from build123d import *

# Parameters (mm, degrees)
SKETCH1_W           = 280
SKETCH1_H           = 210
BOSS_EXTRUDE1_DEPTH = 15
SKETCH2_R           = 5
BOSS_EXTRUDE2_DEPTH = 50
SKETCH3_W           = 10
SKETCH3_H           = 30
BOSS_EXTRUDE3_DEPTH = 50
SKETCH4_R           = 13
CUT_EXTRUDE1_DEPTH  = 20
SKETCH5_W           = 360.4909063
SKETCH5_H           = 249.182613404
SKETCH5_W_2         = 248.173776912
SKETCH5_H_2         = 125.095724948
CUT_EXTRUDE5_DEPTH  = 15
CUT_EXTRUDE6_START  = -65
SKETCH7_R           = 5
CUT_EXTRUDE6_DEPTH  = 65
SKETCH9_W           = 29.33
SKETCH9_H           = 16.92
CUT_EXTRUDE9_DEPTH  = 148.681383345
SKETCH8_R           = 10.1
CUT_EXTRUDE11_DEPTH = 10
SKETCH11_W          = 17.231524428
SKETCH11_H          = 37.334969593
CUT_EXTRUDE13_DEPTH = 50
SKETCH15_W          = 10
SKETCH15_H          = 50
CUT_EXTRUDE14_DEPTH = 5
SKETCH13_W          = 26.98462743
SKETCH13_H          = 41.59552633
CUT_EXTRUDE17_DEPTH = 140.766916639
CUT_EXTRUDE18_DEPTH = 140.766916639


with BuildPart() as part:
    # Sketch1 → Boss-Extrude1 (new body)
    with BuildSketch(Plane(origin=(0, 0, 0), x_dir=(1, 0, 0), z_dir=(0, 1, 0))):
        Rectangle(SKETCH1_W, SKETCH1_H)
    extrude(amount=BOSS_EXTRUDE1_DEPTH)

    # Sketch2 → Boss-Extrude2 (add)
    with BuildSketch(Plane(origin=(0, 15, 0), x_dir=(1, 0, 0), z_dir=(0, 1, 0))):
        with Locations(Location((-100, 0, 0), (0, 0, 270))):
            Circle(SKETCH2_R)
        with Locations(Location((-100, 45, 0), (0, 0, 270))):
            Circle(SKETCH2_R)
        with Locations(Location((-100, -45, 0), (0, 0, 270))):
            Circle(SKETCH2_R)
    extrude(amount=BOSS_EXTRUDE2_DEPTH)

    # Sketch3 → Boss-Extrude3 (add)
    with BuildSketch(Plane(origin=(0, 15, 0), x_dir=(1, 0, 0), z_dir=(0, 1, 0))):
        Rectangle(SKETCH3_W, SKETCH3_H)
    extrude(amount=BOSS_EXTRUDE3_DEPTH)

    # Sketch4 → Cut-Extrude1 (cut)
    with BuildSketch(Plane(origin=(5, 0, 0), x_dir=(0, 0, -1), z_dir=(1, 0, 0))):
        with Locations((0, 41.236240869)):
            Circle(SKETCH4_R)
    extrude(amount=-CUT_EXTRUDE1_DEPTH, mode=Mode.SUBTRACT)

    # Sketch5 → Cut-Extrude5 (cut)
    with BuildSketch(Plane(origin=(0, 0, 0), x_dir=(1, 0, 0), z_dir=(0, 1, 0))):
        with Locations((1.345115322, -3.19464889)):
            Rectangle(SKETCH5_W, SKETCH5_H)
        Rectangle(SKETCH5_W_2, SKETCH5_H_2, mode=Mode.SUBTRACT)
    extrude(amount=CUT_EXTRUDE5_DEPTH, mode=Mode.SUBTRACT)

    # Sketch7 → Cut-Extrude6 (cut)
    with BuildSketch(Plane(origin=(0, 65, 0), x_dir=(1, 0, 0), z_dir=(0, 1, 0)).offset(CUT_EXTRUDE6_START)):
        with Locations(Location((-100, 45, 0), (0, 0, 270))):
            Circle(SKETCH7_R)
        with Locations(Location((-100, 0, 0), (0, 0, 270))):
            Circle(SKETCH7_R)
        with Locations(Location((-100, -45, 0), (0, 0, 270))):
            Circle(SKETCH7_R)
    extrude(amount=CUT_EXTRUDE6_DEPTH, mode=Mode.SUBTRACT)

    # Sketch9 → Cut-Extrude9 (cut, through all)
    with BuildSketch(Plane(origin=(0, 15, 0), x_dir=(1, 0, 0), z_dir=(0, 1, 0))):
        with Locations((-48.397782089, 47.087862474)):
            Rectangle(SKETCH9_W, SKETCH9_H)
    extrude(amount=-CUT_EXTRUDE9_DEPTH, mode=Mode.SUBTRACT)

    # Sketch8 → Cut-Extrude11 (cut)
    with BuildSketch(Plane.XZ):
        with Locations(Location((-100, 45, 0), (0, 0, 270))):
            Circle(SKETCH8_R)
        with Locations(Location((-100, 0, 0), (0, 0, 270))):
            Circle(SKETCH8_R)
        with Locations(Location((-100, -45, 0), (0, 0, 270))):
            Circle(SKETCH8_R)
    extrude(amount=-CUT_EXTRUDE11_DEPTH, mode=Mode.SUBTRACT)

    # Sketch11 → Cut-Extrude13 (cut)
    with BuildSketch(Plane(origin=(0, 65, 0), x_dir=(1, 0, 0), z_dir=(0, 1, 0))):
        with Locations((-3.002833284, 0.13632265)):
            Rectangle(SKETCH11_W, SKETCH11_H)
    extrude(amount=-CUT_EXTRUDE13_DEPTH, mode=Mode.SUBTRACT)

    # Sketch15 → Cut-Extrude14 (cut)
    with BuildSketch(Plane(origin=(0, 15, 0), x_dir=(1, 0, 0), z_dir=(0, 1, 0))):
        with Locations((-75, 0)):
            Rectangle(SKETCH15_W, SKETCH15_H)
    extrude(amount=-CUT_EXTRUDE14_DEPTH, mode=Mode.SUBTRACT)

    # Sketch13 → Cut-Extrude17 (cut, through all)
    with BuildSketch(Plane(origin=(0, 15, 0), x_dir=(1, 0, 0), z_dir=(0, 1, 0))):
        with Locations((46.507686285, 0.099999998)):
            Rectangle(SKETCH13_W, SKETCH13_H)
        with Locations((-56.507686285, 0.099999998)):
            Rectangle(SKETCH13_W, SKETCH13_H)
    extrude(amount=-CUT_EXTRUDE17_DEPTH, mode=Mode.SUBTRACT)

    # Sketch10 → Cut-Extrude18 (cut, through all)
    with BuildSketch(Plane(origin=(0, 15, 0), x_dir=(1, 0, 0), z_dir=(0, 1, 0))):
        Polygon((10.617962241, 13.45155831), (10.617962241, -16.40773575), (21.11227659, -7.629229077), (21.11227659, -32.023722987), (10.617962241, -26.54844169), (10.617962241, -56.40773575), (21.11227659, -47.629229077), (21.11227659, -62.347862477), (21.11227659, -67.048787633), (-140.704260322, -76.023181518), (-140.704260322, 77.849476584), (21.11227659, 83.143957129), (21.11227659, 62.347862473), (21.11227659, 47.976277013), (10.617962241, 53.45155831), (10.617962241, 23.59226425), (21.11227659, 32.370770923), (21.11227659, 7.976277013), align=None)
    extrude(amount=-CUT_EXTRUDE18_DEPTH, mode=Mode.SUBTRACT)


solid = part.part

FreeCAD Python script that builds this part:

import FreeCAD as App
import Part
import Sketcher
from FreeCAD import Vector
Q = App.Units.Quantity

doc = App.newDocument("Part")
params = doc.addObject("Spreadsheet::Sheet", "Params")
for row, (alias, value) in enumerate([
    ("sketch1_width", "280 mm"),
    ("sketch1_height", "210 mm"),
    ("pad1_length", "15 mm"),
    ("sketch2_diameter", "10 mm"),
    ("pad2_length", "50 mm"),
    ("sketch3_width", "10 mm"),
    ("sketch3_height", "30 mm"),
    ("pad3_length", "50 mm"),
    ("sketch4_diameter", "26 mm"),
    ("pocket1_length", "20 mm"),
    ("pocket2_length", "15 mm"),
    ("sketch6_diameter", "10 mm"),
    ("pocket3_length", "65 mm"),
    ("sketch7_width", "29.33 mm"),
    ("sketch7_height", "16.92 mm"),
    ("sketch8_diameter", "20.2 mm"),
    ("pocket5_length", "10 mm"),
    ("pocket6_length", "50 mm"),
    ("sketch10_width", "10 mm"),
    ("sketch10_height", "50 mm"),
    ("pocket7_length", "5 mm"),
], start=1):
    params.set(f"A{row}", alias)
    params.set(f"B{row}", "=" + value)
    params.setAlias(f"B{row}", alias)

body = doc.addObject("PartDesign::Body", "Body")

# Sketch on XZ plane
sketch1 = body.newObject("Sketcher::SketchObject", "Sketch")
sketch1.AttachmentSupport = (doc.getObject("XZ_Plane"), [""])
sketch1.MapMode = "FlatFace"
sketch1.addGeometry(Part.LineSegment(Vector(-140, -105, 0), Vector(-140, 105, 0)), False)
sketch1.addGeometry(Part.LineSegment(Vector(-140, 105, 0), Vector(140, 105, 0)), False)
sketch1.addGeometry(Part.LineSegment(Vector(140, 105, 0), Vector(140, -105, 0)), False)
sketch1.addGeometry(Part.LineSegment(Vector(140, -105, 0), Vector(-140, -105, 0)), False)
sketch1.addConstraint(Sketcher.Constraint("Coincident", 0, 2, 1, 1))
sketch1.addConstraint(Sketcher.Constraint("Coincident", 1, 2, 2, 1))
sketch1.addConstraint(Sketcher.Constraint("Coincident", 2, 2, 3, 1))
sketch1.addConstraint(Sketcher.Constraint("Coincident", 3, 2, 0, 1))
sketch1.addConstraint(Sketcher.Constraint("Vertical", 0))
sketch1.addConstraint(Sketcher.Constraint("Horizontal", 1))
sketch1.addConstraint(Sketcher.Constraint("Vertical", 2))
sketch1.addConstraint(Sketcher.Constraint("Horizontal", 3))
sketch1.addConstraint(Sketcher.Constraint("Symmetric", 0, 2, 2, 2, -1, 1))
sketch1.addConstraint(Sketcher.Constraint("DistanceX", 1, 1, 1, 2, Q("280 mm")))
sketch1.addConstraint(Sketcher.Constraint("DistanceY", 0, 1, 0, 2, Q("210 mm")))
sketch1.setExpression("Constraints[9]", "Params.sketch1_width")
sketch1.setExpression("Constraints[10]", "Params.sketch1_height")
pad1 = body.newObject("PartDesign::Pad", "Pad")
pad1.Profile = sketch1
pad1.setExpression("Length", "Params.pad1_length")
pad1.Reversed = True

# Sketch on XZ plane
sketch2 = body.newObject("Sketcher::SketchObject", "Sketch001")
sketch2.AttachmentSupport = (doc.getObject("XZ_Plane"), [""])
sketch2.MapMode = "FlatFace"
sketch2.AttachmentOffset = App.Placement(Vector(0, 0, -15), App.Rotation())
sketch2.addGeometry(Part.Circle(Vector(-100, 0, 0), Vector(0, 0, 1), 5), False)
sketch2.addGeometry(Part.Circle(Vector(-100, -45, 0), Vector(0, 0, 1), 5), False)
sketch2.addGeometry(Part.Circle(Vector(-100, 45, 0), Vector(0, 0, 1), 5), False)
sketch2.addConstraint(Sketcher.Constraint("Equal", 0, 1))
sketch2.addConstraint(Sketcher.Constraint("Equal", 1, 2))
sketch2.addConstraint(Sketcher.Constraint("Symmetric", 1, 3, 2, 3, -1))
sketch2.addConstraint(Sketcher.Constraint("PointOnObject", 0, 3, -1))
sketch2.addConstraint(Sketcher.Constraint("Vertical", 0, 3, 1, 3))
sketch2.addConstraint(Sketcher.Constraint("Diameter", 0, Q("10 mm")))
sketch2.addConstraint(Sketcher.Constraint("DistanceX", 0, 3, -1, 1, Q("100 mm")))
sketch2.addConstraint(Sketcher.Constraint("DistanceY", 1, 3, -1, 1, Q("45 mm")))
sketch2.setExpression("Constraints[5]", "Params.sketch2_diameter")
pad2 = body.newObject("PartDesign::Pad", "Pad001")
pad2.Profile = sketch2
pad2.setExpression("Length", "Params.pad2_length")
pad2.Reversed = True

# Sketch on XZ plane
sketch3 = body.newObject("Sketcher::SketchObject", "Sketch002")
sketch3.AttachmentSupport = (doc.getObject("XZ_Plane"), [""])
sketch3.MapMode = "FlatFace"
sketch3.AttachmentOffset = App.Placement(Vector(0, 0, -15), App.Rotation())
sketch3.addGeometry(Part.LineSegment(Vector(-5, -15, 0), Vector(-5, 15, 0)), False)
sketch3.addGeometry(Part.LineSegment(Vector(-5, 15, 0), Vector(5, 15, 0)), False)
sketch3.addGeometry(Part.LineSegment(Vector(5, 15, 0), Vector(5, -15, 0)), False)
sketch3.addGeometry(Part.LineSegment(Vector(5, -15, 0), Vector(-5, -15, 0)), False)
sketch3.addConstraint(Sketcher.Constraint("Coincident", 0, 2, 1, 1))
sketch3.addConstraint(Sketcher.Constraint("Coincident", 1, 2, 2, 1))
sketch3.addConstraint(Sketcher.Constraint("Coincident", 2, 2, 3, 1))
sketch3.addConstraint(Sketcher.Constraint("Coincident", 3, 2, 0, 1))
sketch3.addConstraint(Sketcher.Constraint("Vertical", 0))
sketch3.addConstraint(Sketcher.Constraint("Horizontal", 1))
sketch3.addConstraint(Sketcher.Constraint("Vertical", 2))
sketch3.addConstraint(Sketcher.Constraint("Horizontal", 3))
sketch3.addConstraint(Sketcher.Constraint("Symmetric", 0, 2, 2, 2, -1, 1))
sketch3.addConstraint(Sketcher.Constraint("DistanceX", 1, 1, 1, 2, Q("10 mm")))
sketch3.addConstraint(Sketcher.Constraint("DistanceY", 0, 1, 0, 2, Q("30 mm")))
sketch3.setExpression("Constraints[9]", "Params.sketch3_width")
sketch3.setExpression("Constraints[10]", "Params.sketch3_height")
pad3 = body.newObject("PartDesign::Pad", "Pad002")
pad3.Profile = sketch3
pad3.setExpression("Length", "Params.pad3_length")
pad3.Reversed = True

# Sketch on YZ plane
sketch4 = body.newObject("Sketcher::SketchObject", "Sketch003")
sketch4.AttachmentSupport = (doc.getObject("YZ_Plane"), [""])
sketch4.MapMode = "FlatFace"
sketch4.AttachmentOffset = App.Placement(Vector(0, 0, 5), App.Rotation())
sketch4.addGeometry(Part.Circle(Vector(41, 0, 0), Vector(0, 0, 1), 13), False)
sketch4.addConstraint(Sketcher.Constraint("PointOnObject", 0, 3, -1))
sketch4.addConstraint(Sketcher.Constraint("Diameter", 0, Q("26 mm")))
sketch4.addConstraint(Sketcher.Constraint("DistanceX", -1, 1, 0, 3, Q("41.236241 mm")))
sketch4.setExpression("Constraints[1]", "Params.sketch4_diameter")
pocket1 = body.newObject("PartDesign::Pocket", "Pocket")
pocket1.Profile = sketch4
pocket1.setExpression("Length", "Params.pocket1_length")

# Sketch on XZ plane
sketch5 = body.newObject("Sketcher::SketchObject", "Sketch004")
sketch5.AttachmentSupport = (doc.getObject("XZ_Plane"), [""])
sketch5.MapMode = "FlatFace"
sketch5.addGeometry(Part.LineSegment(Vector(-179, -121, 0), Vector(-179, 128, 0)), False)
sketch5.addGeometry(Part.LineSegment(Vector(-179, 128, 0), Vector(182, 128, 0)), False)
sketch5.addGeometry(Part.LineSegment(Vector(182, 128, 0), Vector(182, -121, 0)), False)
sketch5.addGeometry(Part.LineSegment(Vector(182, -121, 0), Vector(-179, -121, 0)), False)
sketch5.addGeometry(Part.LineSegment(Vector(124, 63, 0), Vector(-124, 63, 0)), False)
sketch5.addGeometry(Part.LineSegment(Vector(-124, 63, 0), Vector(-124, -63, 0)), False)
sketch5.addGeometry(Part.LineSegment(Vector(-124, -63, 0), Vector(124, -63, 0)), False)
sketch5.addGeometry(Part.LineSegment(Vector(124, -63, 0), Vector(124, 63, 0)), False)
sketch5.addConstraint(Sketcher.Constraint("Coincident", 0, 2, 1, 1))
sketch5.addConstraint(Sketcher.Constraint("Coincident", 1, 2, 2, 1))
sketch5.addConstraint(Sketcher.Constraint("Coincident", 2, 2, 3, 1))
sketch5.addConstraint(Sketcher.Constraint("Coincident", 3, 2, 0, 1))
sketch5.addConstraint(Sketcher.Constraint("Coincident", 4, 2, 5, 1))
sketch5.addConstraint(Sketcher.Constraint("Coincident", 5, 2, 6, 1))
sketch5.addConstraint(Sketcher.Constraint("Coincident", 6, 2, 7, 1))
sketch5.addConstraint(Sketcher.Constraint("Coincident", 7, 2, 4, 1))
sketch5.addConstraint(Sketcher.Constraint("Vertical", 0))
sketch5.addConstraint(Sketcher.Constraint("Horizontal", 1))
sketch5.addConstraint(Sketcher.Constraint("Vertical", 2))
sketch5.addConstraint(Sketcher.Constraint("Horizontal", 3))
sketch5.addConstraint(Sketcher.Constraint("Horizontal", 4))
sketch5.addConstraint(Sketcher.Constraint("Vertical", 5))
sketch5.addConstraint(Sketcher.Constraint("Horizontal", 6))
sketch5.addConstraint(Sketcher.Constraint("Vertical", 7))
sketch5.addConstraint(Sketcher.Constraint("Symmetric", 4, 2, 6, 2, -1, 1))
sketch5.addConstraint(Sketcher.Constraint("DistanceX", 1, 1, 1, 2, Q("360.490906 mm")))
sketch5.addConstraint(Sketcher.Constraint("DistanceX", 4, 2, 4, 1, Q("248.173777 mm")))
sketch5.addConstraint(Sketcher.Constraint("DistanceY", 0, 1, 0, 2, Q("249.182613 mm")))
sketch5.addConstraint(Sketcher.Constraint("DistanceY", 5, 2, 5, 1, Q("125.095725 mm")))
sketch5.addConstraint(Sketcher.Constraint("DistanceX", -1, 1, 1, 2, Q("181.590568 mm")))
sketch5.addConstraint(Sketcher.Constraint("DistanceY", 3, 2, 4, 2, Q("183.94452 mm")))
pocket2 = body.newObject("PartDesign::Pocket", "Pocket001")
pocket2.Profile = sketch5
pocket2.setExpression("Length", "Params.pocket2_length")

# Sketch on XZ plane
sketch6 = body.newObject("Sketcher::SketchObject", "Sketch005")
sketch6.AttachmentSupport = (doc.getObject("XZ_Plane"), [""])
sketch6.MapMode = "FlatFace"
sketch6.addGeometry(Part.Circle(Vector(-100, -45, 0), Vector(0, 0, 1), 5), False)
sketch6.addGeometry(Part.Circle(Vector(-100, 0, 0), Vector(0, 0, 1), 5), False)
sketch6.addGeometry(Part.Circle(Vector(-100, 45, 0), Vector(0, 0, 1), 5), False)
sketch6.addConstraint(Sketcher.Constraint("Equal", 0, 1))
sketch6.addConstraint(Sketcher.Constraint("Equal", 1, 2))
sketch6.addConstraint(Sketcher.Constraint("Symmetric", 0, 3, 2, 3, -1))
sketch6.addConstraint(Sketcher.Constraint("PointOnObject", 1, 3, -1))
sketch6.addConstraint(Sketcher.Constraint("Vertical", 0, 3, 1, 3))
sketch6.addConstraint(Sketcher.Constraint("Diameter", 0, Q("10 mm")))
sketch6.addConstraint(Sketcher.Constraint("DistanceX", 0, 3, -1, 1, Q("100 mm")))
sketch6.addConstraint(Sketcher.Constraint("DistanceY", 0, 3, -1, 1, Q("45 mm")))
sketch6.setExpression("Constraints[5]", "Params.sketch6_diameter")
pocket3 = body.newObject("PartDesign::Pocket", "Pocket002")
pocket3.Profile = sketch6
pocket3.setExpression("Length", "Params.pocket3_length")

# Sketch on XZ plane
sketch7 = body.newObject("Sketcher::SketchObject", "Sketch006")
sketch7.AttachmentSupport = (doc.getObject("XZ_Plane"), [""])
sketch7.MapMode = "FlatFace"
sketch7.AttachmentOffset = App.Placement(Vector(0, 0, -15), App.Rotation())
sketch7.addGeometry(Part.LineSegment(Vector(-63, -56, 0), Vector(-63, -39, 0)), False)
sketch7.addGeometry(Part.LineSegment(Vector(-63, -39, 0), Vector(-34, -39, 0)), False)
sketch7.addGeometry(Part.LineSegment(Vector(-34, -39, 0), Vector(-34, -56, 0)), False)
sketch7.addGeometry(Part.LineSegment(Vector(-34, -56, 0), Vector(-63, -56, 0)), False)
sketch7.addConstraint(Sketcher.Constraint("Coincident", 0, 2, 1, 1))
sketch7.addConstraint(Sketcher.Constraint("Coincident", 1, 2, 2, 1))
sketch7.addConstraint(Sketcher.Constraint("Coincident", 2, 2, 3, 1))
sketch7.addConstraint(Sketcher.Constraint("Coincident", 3, 2, 0, 1))
sketch7.addConstraint(Sketcher.Constraint("Vertical", 0))
sketch7.addConstraint(Sketcher.Constraint("Horizontal", 1))
sketch7.addConstraint(Sketcher.Constraint("Vertical", 2))
sketch7.addConstraint(Sketcher.Constraint("Horizontal", 3))
sketch7.addConstraint(Sketcher.Constraint("DistanceX", 1, 1, 1, 2, Q("29.33 mm")))
sketch7.addConstraint(Sketcher.Constraint("DistanceY", 0, 1, 0, 2, Q("16.92 mm")))
sketch7.addConstraint(Sketcher.Constraint("DistanceX", 0, 2, -1, 1, Q("63.062782 mm")))
sketch7.addConstraint(Sketcher.Constraint("DistanceY", 0, 2, -1, 1, Q("38.627862 mm")))
sketch7.setExpression("Constraints[8]", "Params.sketch7_width")
sketch7.setExpression("Constraints[9]", "Params.sketch7_height")
pocket4 = body.newObject("PartDesign::Pocket", "Pocket003")
pocket4.Profile = sketch7
pocket4.Type = "ThroughAll"
pocket4.Reversed = True

# Sketch on XZ plane
sketch8 = body.newObject("Sketcher::SketchObject", "Sketch007")
sketch8.AttachmentSupport = (doc.getObject("XZ_Plane"), [""])
sketch8.MapMode = "FlatFace"
sketch8.addGeometry(Part.Circle(Vector(-100, 45, 0), Vector(0, 0, 1), 10), False)
sketch8.addGeometry(Part.Circle(Vector(-100, 0, 0), Vector(0, 0, 1), 10), False)
sketch8.addGeometry(Part.Circle(Vector(-100, -45, 0), Vector(0, 0, 1), 10), False)
sketch8.addConstraint(Sketcher.Constraint("Equal", 0, 1))
sketch8.addConstraint(Sketcher.Constraint("Equal", 1, 2))
sketch8.addConstraint(Sketcher.Constraint("Symmetric", 0, 3, 2, 3, -1))
sketch8.addConstraint(Sketcher.Constraint("PointOnObject", 1, 3, -1))
sketch8.addConstraint(Sketcher.Constraint("Vertical", 0, 3, 1, 3))
sketch8.addConstraint(Sketcher.Constraint("Diameter", 0, Q("20.2 mm")))
sketch8.addConstraint(Sketcher.Constraint("DistanceX", 0, 3, -1, 1, Q("100 mm")))
sketch8.addConstraint(Sketcher.Constraint("DistanceY", -1, 1, 0, 3, Q("45 mm")))
sketch8.setExpression("Constraints[5]", "Params.sketch8_diameter")
pocket5 = body.newObject("PartDesign::Pocket", "Pocket004")
pocket5.Profile = sketch8
pocket5.setExpression("Length", "Params.pocket5_length")

# Sketch on XZ plane
sketch9 = body.newObject("Sketcher::SketchObject", "Sketch008")
sketch9.AttachmentSupport = (doc.getObject("XZ_Plane"), [""])
sketch9.MapMode = "FlatFace"
sketch9.AttachmentOffset = App.Placement(Vector(0, 0, -65), App.Rotation())
sketch9.addGeometry(Part.LineSegment(Vector(-12, -19, 0), Vector(-12, 19, 0)), False)
sketch9.addGeometry(Part.LineSegment(Vector(-12, 19, 0), Vector(6, 19, 0)), False)
sketch9.addGeometry(Part.LineSegment(Vector(6, 19, 0), Vector(6, -19, 0)), False)
sketch9.addGeometry(Part.LineSegment(Vector(6, -19, 0), Vector(-12, -19, 0)), False)
sketch9.addConstraint(Sketcher.Constraint("Coincident", 0, 2, 1, 1))
sketch9.addConstraint(Sketcher.Constraint("Coincident", 1, 2, 2, 1))
sketch9.addConstraint(Sketcher.Constraint("Coincident", 2, 2, 3, 1))
sketch9.addConstraint(Sketcher.Constraint("Coincident", 3, 2, 0, 1))
sketch9.addConstraint(Sketcher.Constraint("Vertical", 0))
sketch9.addConstraint(Sketcher.Constraint("Horizontal", 1))
sketch9.addConstraint(Sketcher.Constraint("Vertical", 2))
sketch9.addConstraint(Sketcher.Constraint("Horizontal", 3))
sketch9.addConstraint(Sketcher.Constraint("DistanceY", 0, 1, 0, 2, Q("37.33497 mm")))
sketch9.addConstraint(Sketcher.Constraint("DistanceX", 1, 1, 1, 2, Q("17.231524 mm")))
sketch9.addConstraint(Sketcher.Constraint("DistanceX", -1, 1, 1, 2, Q("5.612929 mm")))
sketch9.addConstraint(Sketcher.Constraint("DistanceY", -1, 1, 0, 2, Q("18.531162 mm")))
pocket6 = body.newObject("PartDesign::Pocket", "Pocket005")
pocket6.Profile = sketch9
pocket6.setExpression("Length", "Params.pocket6_length")
pocket6.Reversed = True

# Sketch on XZ plane
sketch10 = body.newObject("Sketcher::SketchObject", "Sketch009")
sketch10.AttachmentSupport = (doc.getObject("XZ_Plane"), [""])
sketch10.MapMode = "FlatFace"
sketch10.AttachmentOffset = App.Placement(Vector(0, 0, -15), App.Rotation())
sketch10.addGeometry(Part.LineSegment(Vector(-80, -25, 0), Vector(-80, 25, 0)), False)
sketch10.addGeometry(Part.LineSegment(Vector(-80, 25, 0), Vector(-70, 25, 0)), False)
sketch10.addGeometry(Part.LineSegment(Vector(-70, 25, 0), Vector(-70, -25, 0)), False)
sketch10.addGeometry(Part.LineSegment(Vector(-70, -25, 0), Vector(-80, -25, 0)), False)
sketch10.addConstraint(Sketcher.Constraint("Coincident", 0, 2, 1, 1))
sketch10.addConstraint(Sketcher.Constraint("Coincident", 1, 2, 2, 1))
sketch10.addConstraint(Sketcher.Constraint("Coincident", 2, 2, 3, 1))
sketch10.addConstraint(Sketcher.Constraint("Coincident", 3, 2, 0, 1))
sketch10.addConstraint(Sketcher.Constraint("Vertical", 0))
sketch10.addConstraint(Sketcher.Constraint("Horizontal", 1))
sketch10.addConstraint(Sketcher.Constraint("Vertical", 2))
sketch10.addConstraint(Sketcher.Constraint("Horizontal", 3))
sketch10.addConstraint(Sketcher.Constraint("DistanceX", 1, 1, 1, 2, Q("10 mm")))
sketch10.addConstraint(Sketcher.Constraint("DistanceY", 0, 1, 0, 2, Q("50 mm")))
sketch10.addConstraint(Sketcher.Constraint("DistanceX", 0, 2, -1, 1, Q("80 mm")))
sketch10.addConstraint(Sketcher.Constraint("DistanceY", -1, 1, 0, 2, Q("25 mm")))
sketch10.setExpression("Constraints[8]", "Params.sketch10_width")
sketch10.setExpression("Constraints[9]", "Params.sketch10_height")
pocket7 = body.newObject("PartDesign::Pocket", "Pocket006")
pocket7.Profile = sketch10
pocket7.setExpression("Length", "Params.pocket7_length")
pocket7.Reversed = True

# Sketch on XZ plane
sketch11 = body.newObject("Sketcher::SketchObject", "Sketch010")
sketch11.AttachmentSupport = (doc.getObject("XZ_Plane"), [""])
sketch11.MapMode = "FlatFace"
sketch11.AttachmentOffset = App.Placement(Vector(0, 0, -15), App.Rotation())
sketch11.addGeometry(Part.LineSegment(Vector(33, -21, 0), Vector(33, 21, 0)), False)
sketch11.addGeometry(Part.LineSegment(Vector(33, 21, 0), Vector(60, 21, 0)), False)
sketch11.addGeometry(Part.LineSegment(Vector(60, 21, 0), Vector(60, -21, 0)), False)
sketch11.addGeometry(Part.LineSegment(Vector(60, -21, 0), Vector(33, -21, 0)), False)
sketch11.addGeometry(Part.LineSegment(Vector(-70, -21, 0), Vector(-70, 21, 0)), False)
sketch11.addGeometry(Part.LineSegment(Vector(-70, 21, 0), Vector(-43, 21, 0)), False)
sketch11.addGeometry(Part.LineSegment(Vector(-43, 21, 0), Vector(-43, -21, 0)), False)
sketch11.addGeometry(Part.LineSegment(Vector(-43, -21, 0), Vector(-70, -21, 0)), False)
sketch11.addConstraint(Sketcher.Constraint("Coincident", 0, 2, 1, 1))
sketch11.addConstraint(Sketcher.Constraint("Coincident", 1, 2, 2, 1))
sketch11.addConstraint(Sketcher.Constraint("Coincident", 2, 2, 3, 1))
sketch11.addConstraint(Sketcher.Constraint("Coincident", 3, 2, 0, 1))
sketch11.addConstraint(Sketcher.Constraint("Coincident", 4, 2, 5, 1))
sketch11.addConstraint(Sketcher.Constraint("Coincident", 5, 2, 6, 1))
sketch11.addConstraint(Sketcher.Constraint("Coincident", 6, 2, 7, 1))
sketch11.addConstraint(Sketcher.Constraint("Coincident", 7, 2, 4, 1))
sketch11.addConstraint(Sketcher.Constraint("Vertical", 0))
sketch11.addConstraint(Sketcher.Constraint("Horizontal", 1))
sketch11.addConstraint(Sketcher.Constraint("Vertical", 2))
sketch11.addConstraint(Sketcher.Constraint("Horizontal", 3))
sketch11.addConstraint(Sketcher.Constraint("Vertical", 4))
sketch11.addConstraint(Sketcher.Constraint("Horizontal", 5))
sketch11.addConstraint(Sketcher.Constraint("Vertical", 6))
sketch11.addConstraint(Sketcher.Constraint("Horizontal", 7))
sketch11.addConstraint(Sketcher.Constraint("Horizontal", 1, 2, 4, 2))
sketch11.addConstraint(Sketcher.Constraint("Horizontal", 3, 2, 6, 2))
sketch11.addConstraint(Sketcher.Constraint("Equal", 3, 5))
sketch11.addConstraint(Sketcher.Constraint("DistanceX", -1, 1, 1, 2, Q("60 mm")))
sketch11.addConstraint(Sketcher.Constraint("DistanceX", 4, 2, -1, 1, Q("70 mm")))
sketch11.addConstraint(Sketcher.Constraint("DistanceX", 1, 1, 1, 2, Q("26.984627 mm")))
sketch11.addConstraint(Sketcher.Constraint("DistanceY", 0, 1, 0, 2, Q("41.595526 mm")))
sketch11.addConstraint(Sketcher.Constraint("DistanceY", -1, 1, 0, 2, Q("20.697763 mm")))
pocket8 = body.newObject("PartDesign::Pocket", "Pocket007")
pocket8.Profile = sketch11
pocket8.Type = "ThroughAll"
pocket8.Reversed = True

# Sketch on XZ plane
sketch12 = body.newObject("Sketcher::SketchObject", "Sketch011")
sketch12.AttachmentSupport = (doc.getObject("XZ_Plane"), [""])
sketch12.MapMode = "FlatFace"
sketch12.AttachmentOffset = App.Placement(Vector(0, 0, -15), App.Rotation())
sketch12.addGeometry(Part.LineSegment(Vector(11, 16, 0), Vector(11, -13, 0)), False)
sketch12.addGeometry(Part.LineSegment(Vector(11, -13, 0), Vector(21, -8, 0)), False)
sketch12.addGeometry(Part.LineSegment(Vector(21, -8, 0), Vector(21, -32, 0)), False)
sketch12.addGeometry(Part.LineSegment(Vector(21, -32, 0), Vector(11, -24, 0)), False)
sketch12.addGeometry(Part.LineSegment(Vector(11, -24, 0), Vector(11, -53, 0)), False)
sketch12.addGeometry(Part.LineSegment(Vector(11, -53, 0), Vector(21, -48, 0)), False)
sketch12.addGeometry(Part.LineSegment(Vector(21, -48, 0), Vector(21, -83, 0)), False)
sketch12.addGeometry(Part.LineSegment(Vector(21, -83, 0), Vector(-141, -78, 0)), False)
sketch12.addGeometry(Part.LineSegment(Vector(-141, -78, 0), Vector(-141, 76, 0)), False)
sketch12.addGeometry(Part.LineSegment(Vector(-141, 76, 0), Vector(21, 67, 0)), False)
sketch12.addGeometry(Part.LineSegment(Vector(21, 67, 0), Vector(21, 48, 0)), False)
sketch12.addGeometry(Part.LineSegment(Vector(21, 48, 0), Vector(11, 56, 0)), False)
sketch12.addGeometry(Part.LineSegment(Vector(11, 56, 0), Vector(11, 27, 0)), False)
sketch12.addGeometry(Part.LineSegment(Vector(11, 27, 0), Vector(21, 32, 0)), False)
sketch12.addGeometry(Part.LineSegment(Vector(21, 32, 0), Vector(21, 8, 0)), False)
sketch12.addGeometry(Part.LineSegment(Vector(21, 8, 0), Vector(11, 16, 0)), False)
sketch12.addConstraint(Sketcher.Constraint("Coincident", 0, 2, 1, 1))
sketch12.addConstraint(Sketcher.Constraint("Coincident", 1, 2, 2, 1))
sketch12.addConstraint(Sketcher.Constraint("Coincident", 2, 2, 3, 1))
sketch12.addConstraint(Sketcher.Constraint("Coincident", 3, 2, 4, 1))
sketch12.addConstraint(Sketcher.Constraint("Coincident", 4, 2, 5, 1))
sketch12.addConstraint(Sketcher.Constraint("Coincident", 5, 2, 6, 1))
sketch12.addConstraint(Sketcher.Constraint("Coincident", 6, 2, 7, 1))
sketch12.addConstraint(Sketcher.Constraint("Coincident", 7, 2, 8, 1))
sketch12.addConstraint(Sketcher.Constraint("Coincident", 8, 2, 9, 1))
sketch12.addConstraint(Sketcher.Constraint("Coincident", 9, 2, 10, 1))
sketch12.addConstraint(Sketcher.Constraint("Coincident", 10, 2, 11, 1))
sketch12.addConstraint(Sketcher.Constraint("Coincident", 11, 2, 12, 1))
sketch12.addConstraint(Sketcher.Constraint("Coincident", 12, 2, 13, 1))
sketch12.addConstraint(Sketcher.Constraint("Coincident", 13, 2, 14, 1))
sketch12.addConstraint(Sketcher.Constraint("Coincident", 14, 2, 15, 1))
sketch12.addConstraint(Sketcher.Constraint("Coincident", 15, 2, 0, 1))
sketch12.addConstraint(Sketcher.Constraint("Vertical", 0))
sketch12.addConstraint(Sketcher.Constraint("Vertical", 2))
sketch12.addConstraint(Sketcher.Constraint("Vertical", 4))
sketch12.addConstraint(Sketcher.Constraint("Vertical", 6))
sketch12.addConstraint(Sketcher.Constraint("Vertical", 8))
sketch12.addConstraint(Sketcher.Constraint("Vertical", 10))
sketch12.addConstraint(Sketcher.Constraint("Vertical", 12))
sketch12.addConstraint(Sketcher.Constraint("Vertical", 14))
sketch12.addConstraint(Sketcher.Constraint("Parallel", 1, 5))
sketch12.addConstraint(Sketcher.Constraint("Parallel", 3, 11))
sketch12.addConstraint(Sketcher.Constraint("Parallel", 5, 13))
sketch12.addConstraint(Sketcher.Constraint("Parallel", 11, 15))
sketch12.addConstraint(Sketcher.Constraint("Vertical", 0, 2, 3, 2))
sketch12.addConstraint(Sketcher.Constraint("Vertical", 2, 2, 5, 2))
sketch12.addConstraint(Sketcher.Constraint("Vertical", 6, 2, 9, 2))
sketch12.addConstraint(Sketcher.Constraint("Vertical", 4, 2, 11, 2))
sketch12.addConstraint(Sketcher.Constraint("Vertical", 10, 2, 13, 2))
sketch12.addConstraint(Sketcher.Constraint("Equal", 0, 4))
sketch12.addConstraint(Sketcher.Constraint("Equal", 4, 12))
sketch12.addConstraint(Sketcher.Constraint("Equal", 2, 14))
sketch12.addConstraint(Sketcher.Constraint("DistanceY", 4, 2, 0, 2, Q("40 mm")))
sketch12.addConstraint(Sketcher.Constraint("DistanceY", 6, 2, 6, 1, Q("35.16768 mm")))
sketch12.addConstraint(Sketcher.Constraint("DistanceY", 8, 1, 8, 2, Q("153.872658 mm")))
sketch12.addConstraint(Sketcher.Constraint("DistanceY", 10, 2, 10, 1, Q("19.419559 mm")))
sketch12.addConstraint(Sketcher.Constraint("DistanceY", 6, 2, 4, 2, Q("29.692399 mm")))
sketch12.addConstraint(Sketcher.Constraint("DistanceY", 7, 2, 5, 2, Q("29.8732 mm")))
sketch12.addConstraint(Sketcher.Constraint("Distance", 1, Q("11.836779 mm")))
sketch12.addConstraint(Sketcher.Constraint("Distance", 7, Q("161.903129 mm")))
sketch12.addConstraint(Sketcher.Constraint("DistanceY", 0, 2, 0, 1, Q("29.859294 mm")))
sketch12.addConstraint(Sketcher.Constraint("DistanceY", 2, 2, 2, 1, Q("24.394494 mm")))
sketch12.addConstraint(Sketcher.Constraint("DistanceY", 0, 2, -1, 1, Q("13.451558 mm")))
sketch12.addConstraint(Sketcher.Constraint("DistanceX", 7, 2, -1, 1, Q("140.70426 mm")))
pocket9 = body.newObject("PartDesign::Pocket", "Pocket008")
pocket9.Profile = sketch12
pocket9.Type = "ThroughAll"
pocket9.Reversed = True

doc.recompute()
